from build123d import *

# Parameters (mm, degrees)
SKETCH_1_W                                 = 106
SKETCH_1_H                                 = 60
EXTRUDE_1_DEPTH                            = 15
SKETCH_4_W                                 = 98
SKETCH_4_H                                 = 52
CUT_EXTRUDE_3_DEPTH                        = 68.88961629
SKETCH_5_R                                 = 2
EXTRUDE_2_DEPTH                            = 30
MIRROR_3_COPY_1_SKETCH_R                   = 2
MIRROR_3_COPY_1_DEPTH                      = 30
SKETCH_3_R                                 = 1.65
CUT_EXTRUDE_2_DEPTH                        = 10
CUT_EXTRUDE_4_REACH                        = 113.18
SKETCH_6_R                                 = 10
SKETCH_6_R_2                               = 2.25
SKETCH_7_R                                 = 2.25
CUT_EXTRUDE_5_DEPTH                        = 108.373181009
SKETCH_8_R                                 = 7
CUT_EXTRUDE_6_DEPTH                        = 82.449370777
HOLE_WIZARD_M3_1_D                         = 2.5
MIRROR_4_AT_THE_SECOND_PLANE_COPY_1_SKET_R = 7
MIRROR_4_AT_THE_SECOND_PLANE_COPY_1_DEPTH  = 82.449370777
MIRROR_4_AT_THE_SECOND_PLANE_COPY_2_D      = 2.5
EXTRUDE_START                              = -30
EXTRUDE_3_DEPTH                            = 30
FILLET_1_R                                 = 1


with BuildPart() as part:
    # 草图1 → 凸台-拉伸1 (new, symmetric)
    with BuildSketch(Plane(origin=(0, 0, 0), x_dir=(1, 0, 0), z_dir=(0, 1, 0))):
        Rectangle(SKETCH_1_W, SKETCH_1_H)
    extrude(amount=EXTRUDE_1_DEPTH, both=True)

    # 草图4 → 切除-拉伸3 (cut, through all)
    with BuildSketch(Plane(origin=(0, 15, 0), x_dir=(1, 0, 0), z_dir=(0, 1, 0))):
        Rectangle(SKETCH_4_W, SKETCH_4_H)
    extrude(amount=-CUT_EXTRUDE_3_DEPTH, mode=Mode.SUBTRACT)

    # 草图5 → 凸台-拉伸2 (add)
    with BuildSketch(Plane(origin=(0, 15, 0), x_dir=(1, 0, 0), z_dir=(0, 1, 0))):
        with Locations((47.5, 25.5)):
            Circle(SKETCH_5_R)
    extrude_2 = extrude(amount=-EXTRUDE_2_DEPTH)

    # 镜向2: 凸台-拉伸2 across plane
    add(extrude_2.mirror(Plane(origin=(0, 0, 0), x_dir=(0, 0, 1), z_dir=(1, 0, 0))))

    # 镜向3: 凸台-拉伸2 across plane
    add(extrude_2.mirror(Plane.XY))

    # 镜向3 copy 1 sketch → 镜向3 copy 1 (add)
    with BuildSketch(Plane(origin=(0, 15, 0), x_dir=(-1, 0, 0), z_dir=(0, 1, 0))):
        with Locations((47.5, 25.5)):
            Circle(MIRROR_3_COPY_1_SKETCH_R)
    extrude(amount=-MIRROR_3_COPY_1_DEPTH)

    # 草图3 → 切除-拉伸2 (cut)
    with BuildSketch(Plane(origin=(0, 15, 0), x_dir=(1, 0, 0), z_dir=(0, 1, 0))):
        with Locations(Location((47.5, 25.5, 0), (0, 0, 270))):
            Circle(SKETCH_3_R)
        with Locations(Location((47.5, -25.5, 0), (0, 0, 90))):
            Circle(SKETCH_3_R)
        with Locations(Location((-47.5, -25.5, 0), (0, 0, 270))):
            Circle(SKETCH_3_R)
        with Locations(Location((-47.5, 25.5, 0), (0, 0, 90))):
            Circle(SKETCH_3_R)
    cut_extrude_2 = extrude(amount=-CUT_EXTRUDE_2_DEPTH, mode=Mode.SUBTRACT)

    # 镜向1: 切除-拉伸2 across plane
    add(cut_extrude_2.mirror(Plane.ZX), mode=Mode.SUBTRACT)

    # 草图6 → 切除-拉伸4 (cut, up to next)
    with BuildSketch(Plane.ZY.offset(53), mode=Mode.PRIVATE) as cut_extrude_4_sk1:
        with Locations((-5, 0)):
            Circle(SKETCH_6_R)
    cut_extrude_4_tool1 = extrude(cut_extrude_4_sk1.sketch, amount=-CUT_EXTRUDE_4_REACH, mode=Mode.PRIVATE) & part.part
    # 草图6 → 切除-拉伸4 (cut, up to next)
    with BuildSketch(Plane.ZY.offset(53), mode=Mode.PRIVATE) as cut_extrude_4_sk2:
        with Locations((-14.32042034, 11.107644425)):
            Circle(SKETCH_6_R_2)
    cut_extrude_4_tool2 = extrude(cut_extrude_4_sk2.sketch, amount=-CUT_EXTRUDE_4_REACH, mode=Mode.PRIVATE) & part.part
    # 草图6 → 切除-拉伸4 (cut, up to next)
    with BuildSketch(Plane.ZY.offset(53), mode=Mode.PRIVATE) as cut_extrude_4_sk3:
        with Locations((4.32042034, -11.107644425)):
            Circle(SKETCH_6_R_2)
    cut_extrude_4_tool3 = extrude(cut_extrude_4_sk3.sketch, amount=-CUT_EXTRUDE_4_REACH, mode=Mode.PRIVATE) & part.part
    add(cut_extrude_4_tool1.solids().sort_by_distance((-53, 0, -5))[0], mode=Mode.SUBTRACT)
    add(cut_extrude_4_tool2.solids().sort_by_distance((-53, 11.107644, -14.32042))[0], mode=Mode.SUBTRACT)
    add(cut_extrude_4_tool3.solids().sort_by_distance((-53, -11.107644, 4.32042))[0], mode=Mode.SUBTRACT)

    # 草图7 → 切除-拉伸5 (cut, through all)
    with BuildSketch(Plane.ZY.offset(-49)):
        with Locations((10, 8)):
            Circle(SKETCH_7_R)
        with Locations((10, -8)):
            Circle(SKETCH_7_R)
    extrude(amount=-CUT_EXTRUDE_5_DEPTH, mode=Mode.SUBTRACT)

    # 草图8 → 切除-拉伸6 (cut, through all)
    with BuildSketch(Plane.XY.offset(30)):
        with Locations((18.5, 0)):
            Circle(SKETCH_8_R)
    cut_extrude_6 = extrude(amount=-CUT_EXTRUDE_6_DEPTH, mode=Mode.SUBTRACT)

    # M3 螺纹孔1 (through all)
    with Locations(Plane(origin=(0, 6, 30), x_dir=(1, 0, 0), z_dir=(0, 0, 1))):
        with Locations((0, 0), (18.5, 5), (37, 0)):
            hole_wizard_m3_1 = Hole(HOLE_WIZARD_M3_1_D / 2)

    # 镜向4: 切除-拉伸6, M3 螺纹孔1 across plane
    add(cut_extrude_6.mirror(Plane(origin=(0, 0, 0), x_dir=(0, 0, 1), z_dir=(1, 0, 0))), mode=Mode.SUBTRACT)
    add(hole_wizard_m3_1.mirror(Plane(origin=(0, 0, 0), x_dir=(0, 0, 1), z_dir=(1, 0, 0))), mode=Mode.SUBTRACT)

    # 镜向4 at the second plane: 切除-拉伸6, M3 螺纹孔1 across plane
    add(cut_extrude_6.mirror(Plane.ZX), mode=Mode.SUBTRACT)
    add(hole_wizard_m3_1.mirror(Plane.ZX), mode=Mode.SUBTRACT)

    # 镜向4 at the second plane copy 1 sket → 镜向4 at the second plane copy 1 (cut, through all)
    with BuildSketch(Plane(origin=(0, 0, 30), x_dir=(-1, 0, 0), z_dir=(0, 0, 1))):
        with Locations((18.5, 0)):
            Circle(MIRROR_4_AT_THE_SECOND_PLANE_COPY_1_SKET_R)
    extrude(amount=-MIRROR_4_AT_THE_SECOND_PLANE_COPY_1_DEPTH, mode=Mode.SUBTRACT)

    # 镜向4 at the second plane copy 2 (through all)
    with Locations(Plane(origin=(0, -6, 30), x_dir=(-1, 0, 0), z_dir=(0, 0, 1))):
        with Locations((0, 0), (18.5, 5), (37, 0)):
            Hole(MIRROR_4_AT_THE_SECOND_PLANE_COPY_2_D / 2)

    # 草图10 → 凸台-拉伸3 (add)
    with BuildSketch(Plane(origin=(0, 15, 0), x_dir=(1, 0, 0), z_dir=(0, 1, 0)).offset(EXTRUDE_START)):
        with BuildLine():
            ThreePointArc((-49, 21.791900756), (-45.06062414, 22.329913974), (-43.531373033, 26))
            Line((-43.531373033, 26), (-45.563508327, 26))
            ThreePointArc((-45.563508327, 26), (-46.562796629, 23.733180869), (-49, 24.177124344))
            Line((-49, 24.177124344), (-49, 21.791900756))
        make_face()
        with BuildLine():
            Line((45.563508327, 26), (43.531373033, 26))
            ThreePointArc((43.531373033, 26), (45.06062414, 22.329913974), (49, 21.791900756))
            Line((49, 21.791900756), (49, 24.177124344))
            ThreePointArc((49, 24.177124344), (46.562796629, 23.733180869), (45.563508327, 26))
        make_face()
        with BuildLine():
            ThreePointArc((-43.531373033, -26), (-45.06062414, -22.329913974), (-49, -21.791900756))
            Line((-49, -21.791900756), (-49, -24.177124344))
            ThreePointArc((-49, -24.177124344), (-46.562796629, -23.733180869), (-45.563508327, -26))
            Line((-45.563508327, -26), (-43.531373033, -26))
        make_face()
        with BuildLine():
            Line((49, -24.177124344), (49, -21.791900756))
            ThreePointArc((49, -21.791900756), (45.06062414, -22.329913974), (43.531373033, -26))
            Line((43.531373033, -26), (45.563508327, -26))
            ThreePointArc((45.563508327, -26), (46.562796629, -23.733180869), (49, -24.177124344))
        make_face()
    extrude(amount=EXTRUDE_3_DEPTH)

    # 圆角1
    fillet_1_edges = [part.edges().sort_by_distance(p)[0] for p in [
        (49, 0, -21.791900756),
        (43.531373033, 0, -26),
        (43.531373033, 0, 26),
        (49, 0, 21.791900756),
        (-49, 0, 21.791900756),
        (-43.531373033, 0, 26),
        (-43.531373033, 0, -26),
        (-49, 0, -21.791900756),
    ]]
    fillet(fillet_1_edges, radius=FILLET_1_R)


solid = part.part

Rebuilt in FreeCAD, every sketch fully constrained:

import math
import FreeCAD as App
import Part
import Sketcher
from FreeCAD import Vector
Q = App.Units.Quantity


def edges_at(feature, points):
    """Names of the edges that pass closest to the given points."""
    edges = feature.Shape.Edges
    near = lambda p: min(range(len(edges)), key=lambda i: edges[i].distToShape(Part.Vertex(*p))[0])
    return sorted({f"Edge{near(p) + 1}" for p in points})

doc = App.newDocument("Part")
body = doc.addObject("PartDesign::Body", "Body")

sketch1 = body.newObject("Sketcher::SketchObject", "Sketch")
sketch1.AttachmentSupport = (doc.getObject("XZ_Plane"), [""])
sketch1.MapMode = "FlatFace"
sketch1.addGeometry([
    Part.LineSegment(Vector(-53, -30, 0), Vector(-53, 30, 0)),
    Part.LineSegment(Vector(-53, 30, 0), Vector(53, 30, 0)),
    Part.LineSegment(Vector(53, 30, 0), Vector(53, -30, 0)),
    Part.LineSegment(Vector(53, -30, 0), Vector(-53, -30, 0)),
], False)
sketch1.addConstraint([
    Sketcher.Constraint("Coincident", 0, 2, 1, 1),
    Sketcher.Constraint("Coincident", 1, 2, 2, 1),
    Sketcher.Constraint("Coincident", 2, 2, 3, 1),
    Sketcher.Constraint("Coincident", 3, 2, 0, 1),
    Sketcher.Constraint("Vertical", 0),
    Sketcher.Constraint("Horizontal", 1),
    Sketcher.Constraint("Vertical", 2),
    Sketcher.Constraint("Horizontal", 3),
    Sketcher.Constraint("Symmetric", 0, 2, 2, 2, -1, 1),
    Sketcher.Constraint("DistanceX", 1, 1, 1, 2, Q("106 mm")),
    Sketcher.Constraint("DistanceY", 0, 1, 0, 2, Q("60 mm")),
])
pad1 = body.newObject("PartDesign::Pad", "Pad")
pad1.Profile = sketch1
pad1.Length = 30
pad1.Midplane = True

sketch2 = body.newObject("Sketcher::SketchObject", "Sketch001")
sketch2.AttachmentSupport = (doc.getObject("XZ_Plane"), [""])
sketch2.MapMode = "FlatFace"
sketch2.AttachmentOffset = App.Placement(Vector(0, 0, -15), App.Rotation())
sketch2.addGeometry([
    Part.LineSegment(Vector(-49, -26, 0), Vector(-49, 26, 0)),
    Part.LineSegment(Vector(-49, 26, 0), Vector(49, 26, 0)),
    Part.LineSegment(Vector(49, 26, 0), Vector(49, -26, 0)),
    Part.LineSegment(Vector(49, -26, 0), Vector(-49, -26, 0)),
], False)
sketch2.addConstraint([
    Sketcher.Constraint("Coincident", 0, 2, 1, 1),
    Sketcher.Constraint("Coincident", 1, 2, 2, 1),
    Sketcher.Constraint("Coincident", 2, 2, 3, 1),
    Sketcher.Constraint("Coincident", 3, 2, 0, 1),
    Sketcher.Constraint("Vertical", 0),
    Sketcher.Constraint("Horizontal", 1),
    Sketcher.Constraint("Vertical", 2),
    Sketcher.Constraint("Horizontal", 3),
    Sketcher.Constraint("Symmetric", 0, 2, 2, 2, -1, 1),
    Sketcher.Constraint("DistanceX", 1, 1, 1, 2, Q("98 mm")),
    Sketcher.Constraint("DistanceY", 0, 1, 0, 2, Q("52 mm")),
])
pocket1 = body.newObject("PartDesign::Pocket", "Pocket")
pocket1.Profile = sketch2
pocket1.Type = "ThroughAll"
pocket1.Reversed = True

sketch3 = body.newObject("Sketcher::SketchObject", "Sketch002")
sketch3.AttachmentSupport = (doc.getObject("XZ_Plane"), [""])
sketch3.MapMode = "FlatFace"
sketch3.AttachmentOffset = App.Placement(Vector(0, 0, -15), App.Rotation())
sketch3.addGeometry(Part.Circle(Vector(47.5, -25.5, 0), Vector(0, 0, 1), 2), False)
sketch3.addConstraint([
    Sketcher.Constraint("Diameter", 0, Q("4 mm")),
    Sketcher.Constraint("DistanceX", -1, 1, 0, 3, Q("47.5 mm")),
    Sketcher.Constraint("DistanceY", 0, 3, -1, 1, Q("25.5 mm")),
])
pad2 = body.newObject("PartDesign::Pad", "Pad001")
pad2.Profile = sketch3
pad2.Length = 30
doc.recompute()

mirrored = body.newObject("PartDesign::Mirrored", "Mirrored")
mirrored.Originals = [pad2]
mirrored.MirrorPlane = (doc.getObject("YZ_Plane"), [""])
body.Tip = mirrored
doc.recompute()

mirrored2 = body.newObject("PartDesign::Mirrored", "Mirrored001")
mirrored2.Originals = [pad2]
mirrored2.MirrorPlane = (doc.getObject("XY_Plane"), [""])
body.Tip = mirrored2

sketch4 = body.newObject("Sketcher::SketchObject", "Sketch003")
sketch4.AttachmentSupport = (doc.getObject("XZ_Plane"), [""])
sketch4.MapMode = "FlatFace"
sketch4.AttachmentOffset = App.Placement(Vector(0, 0, -15), App.Rotation())
sketch4.addGeometry(Part.Circle(Vector(-47.5, 25.5, 0), Vector(0, 0, 1), 2), False)
sketch4.addConstraint([
    Sketcher.Constraint("Diameter", 0, Q("4 mm")),
    Sketcher.Constraint("DistanceX", 0, 3, -1, 1, Q("47.5 mm")),
    Sketcher.Constraint("DistanceY", -1, 1, 0, 3, Q("25.5 mm")),
])
pad3 = body.newObject("PartDesign::Pad", "Pad002")
pad3.Profile = sketch4
pad3.Length = 30

sketch5 = body.newObject("Sketcher::SketchObject", "Sketch004")
sketch5.AttachmentSupport = (doc.getObject("XZ_Plane"), [""])
sketch5.MapMode = "FlatFace"
sketch5.AttachmentOffset = App.Placement(Vector(0, 0, -15), App.Rotation())
sketch5.addGeometry([
    Part.Circle(Vector(47.5, -25.5, 0), Vector(0, 0, 1), 1.6),
    Part.Circle(Vector(47.5, 25.5, 0), Vector(0, 0, 1), 1.6),
    Part.Circle(Vector(-47.5, 25.5, 0), Vector(0, 0, 1), 1.6),
    Part.Circle(Vector(-47.5, -25.5, 0), Vector(0, 0, 1), 1.6),
], False)
sketch5.addConstraint([
    Sketcher.Constraint("Equal", 0, 1),
    Sketcher.Constraint("Equal", 1, 2),
    Sketcher.Constraint("Equal", 2, 3),
    Sketcher.Constraint("Symmetric", 0, 3, 2, 3, -1, 1),
    Sketcher.Constraint("Symmetric", 1, 3, 3, 3, -1, 1),
    Sketcher.Constraint("Symmetric", 1, 3, 2, 3, -2),
    Sketcher.Constraint("Diameter", 0, Q("3.3 mm")),
    Sketcher.Constraint("DistanceY", 0, 3, 1, 3, Q("51 mm")),
    Sketcher.Constraint("DistanceX", 2, 3, 1, 3, Q("95 mm")),
])
pocket2 = body.newObject("PartDesign::Pocket", "Pocket001")
pocket2.Profile = sketch5
pocket2.Length = 10
pocket2.Reversed = True
doc.recompute()

mirrored3 = body.newObject("PartDesign::Mirrored", "Mirrored002")
mirrored3.Originals = [pocket2]
mirrored3.MirrorPlane = (doc.getObject("XZ_Plane"), [""])
body.Tip = mirrored3

sketch6 = body.newObject("Sketcher::SketchObject", "Sketch005")
sketch6.AttachmentSupport = (doc.getObject("YZ_Plane"), [""])
sketch6.MapMode = "FlatFace"
sketch6.AttachmentOffset = App.Placement(Vector(0, 0, -53), App.Rotation())
sketch6.addGeometry(Part.Circle(Vector(0, -5, 0), Vector(0, 0, 1), 10), False)
sketch6.addConstraint([
    Sketcher.Constraint("PointOnObject", 0, 3, -2),
    Sketcher.Constraint("Diameter", 0, Q("20 mm")),
    Sketcher.Constraint("DistanceY", 0, 3, -1, 1, Q("5 mm")),
])
pocket3 = body.newObject("PartDesign::Pocket", "Pocket002")
pocket3.Profile = sketch6
pocket3.Type = "UpToFirst"
pocket3.Reversed = True

sketch7 = body.newObject("Sketcher::SketchObject", "Sketch006")
sketch7.AttachmentSupport = (doc.getObject("YZ_Plane"), [""])
sketch7.MapMode = "FlatFace"
sketch7.AttachmentOffset = App.Placement(Vector(0, 0, -53), App.Rotation())
sketch7.addGeometry(Part.Circle(Vector(11.1, -14.3, 0), Vector(0, 0, 1), 2.2), False)
sketch7.addConstraint([
    Sketcher.Constraint("Diameter", 0, Q("4.5 mm")),
    Sketcher.Constraint("DistanceY", 0, 3, -1, 1, Q("14.32042 mm")),
    Sketcher.Constraint("DistanceX", -1, 1, 0, 3, Q("11.107644 mm")),
])
pocket4 = body.newObject("PartDesign::Pocket", "Pocket003")
pocket4.Profile = sketch7
pocket4.Type = "UpToFirst"
pocket4.Reversed = True

sketch8 = body.newObject("Sketcher::SketchObject", "Sketch007")
sketch8.AttachmentSupport = (doc.getObject("YZ_Plane"), [""])
sketch8.MapMode = "FlatFace"
sketch8.AttachmentOffset = App.Placement(Vector(0, 0, -53), App.Rotation())
sketch8.addGeometry(Part.Circle(Vector(-11.1, 4.3, 0), Vector(0, 0, 1), 2.2), False)
sketch8.addConstraint([
    Sketcher.Constraint("Diameter", 0, Q("4.5 mm")),
    Sketcher.Constraint("DistanceY", -1, 1, 0, 3, Q("4.32042 mm")),
    Sketcher.Constraint("DistanceX", 0, 3, -1, 1, Q("11.107644 mm")),
])
pocket5 = body.newObject("PartDesign::Pocket", "Pocket004")
pocket5.Profile = sketch8
pocket5.Type = "UpToFirst"
pocket5.Reversed = True

sketch9 = body.newObject("Sketcher::SketchObject", "Sketch008")
sketch9.AttachmentSupport = (doc.getObject("YZ_Plane"), [""])
sketch9.MapMode = "FlatFace"
sketch9.AttachmentOffset = App.Placement(Vector(0, 0, 49), App.Rotation())
sketch9.addGeometry([
    Part.Circle(Vector(8, 10, 0), Vector(0, 0, 1), 2.2),
    Part.Circle(Vector(-8, 10, 0), Vector(0, 0, 1), 2.2),
], False)
sketch9.addConstraint([
    Sketcher.Constraint("Equal", 0, 1),
    Sketcher.Constraint("Symmetric", 0, 3, 1, 3, -2),
    Sketcher.Constraint("Diameter", 0, Q("4.5 mm")),
    Sketcher.Constraint("DistanceX", -1, 1, 0, 3, Q("8 mm")),
    Sketcher.Constraint("DistanceY", -1, 1, 0, 3, Q("10 mm")),
])
pocket6 = body.newObject("PartDesign::Pocket", "Pocket005")
pocket6.Profile = sketch9
pocket6.Type = "ThroughAll"
pocket6.Reversed = True

sketch10 = body.newObject("Sketcher::SketchObject", "Sketch009")
sketch10.AttachmentSupport = (doc.getObject("XY_Plane"), [""])
sketch10.MapMode = "FlatFace"
sketch10.AttachmentOffset = App.Placement(Vector(0, 0, 30), App.Rotation())
sketch10.addGeometry(Part.Circle(Vector(18, 0, 0), Vector(0, 0, 1), 7), False)
sketch10.addConstraint([
    Sketcher.Constraint("PointOnObject", 0, 3, -1),
    Sketcher.Constraint("Diameter", 0, Q("14 mm")),
    Sketcher.Constraint("DistanceX", -1, 1, 0, 3, Q("18.5 mm")),
])
pocket7 = body.newObject("PartDesign::Pocket", "Pocket006")
pocket7.Profile = sketch10
pocket7.Type = "ThroughAll"

sketch11 = body.newObject("Sketcher::SketchObject", "Sketch010")
sketch11.AttachmentSupport = (doc.getObject("XY_Plane"), [""])
sketch11.MapMode = "FlatFace"
sketch11.AttachmentOffset = App.Placement(Vector(0, 0, 30), App.Rotation())
sketch11.addGeometry([
    Part.Circle(Vector(0, 6, 0), Vector(0, 0, 1), 1.2),
    Part.Circle(Vector(18.5, 11, 0), Vector(0, 0, 1), 1.2),
    Part.Circle(Vector(37, 6, 0), Vector(0, 0, 1), 1.2),
], False)
sketch11.addConstraint([
    Sketcher.Constraint("Equal", 0, 1),
    Sketcher.Constraint("Equal", 1, 2),
    Sketcher.Constraint("PointOnObject", 0, 3, -2),
    Sketcher.Constraint("Horizontal", 0, 3, 2, 3),
    Sketcher.Constraint("Diameter", 0, Q("2.5 mm")),
    Sketcher.Constraint("DistanceY", -1, 1, 0, 3, Q("6 mm")),
    Sketcher.Constraint("DistanceY", -1, 1, 1, 3, Q("11 mm")),
    Sketcher.Constraint("DistanceX", -1, 1, 2, 3, Q("37 mm")),
    Sketcher.Constraint("DistanceX", -1, 1, 1, 3, Q("18.5 mm")),
])
doc.recompute()
hole = body.newObject("PartDesign::Hole", "Hole")
hole.Profile = sketch11
hole.ThreadType = "None"
hole.Diameter = 2.5
hole.DepthType = "ThroughAll"
doc.recompute()

mirrored4 = body.newObject("PartDesign::Mirrored", "Mirrored003")
mirrored4.Originals = [pocket7, hole]
mirrored4.MirrorPlane = (doc.getObject("YZ_Plane"), [""])
body.Tip = mirrored4
doc.recompute()

mirrored5 = body.newObject("PartDesign::Mirrored", "Mirrored004")
mirrored5.Originals = [pocket7, hole]
mirrored5.MirrorPlane = (doc.getObject("XZ_Plane"), [""])
body.Tip = mirrored5

sketch12 = body.newObject("Sketcher::SketchObject", "Sketch011")
sketch12.AttachmentSupport = (doc.getObject("XY_Plane"), [""])
sketch12.MapMode = "FlatFace"
sketch12.AttachmentOffset = App.Placement(Vector(0, 0, 30), App.Rotation())
sketch12.addGeometry(Part.Circle(Vector(-18, 0, 0), Vector(0, 0, 1), 7), False)
sketch12.addConstraint([
    Sketcher.Constraint("PointOnObject", 0, 3, -1),
    Sketcher.Constraint("Diameter", 0, Q("14 mm")),
    Sketcher.Constraint("DistanceX", 0, 3, -1, 1, Q("18.5 mm")),
])
pocket8 = body.newObject("PartDesign::Pocket", "Pocket007")
pocket8.Profile = sketch12
pocket8.Type = "ThroughAll"

sketch13 = body.newObject("Sketcher::SketchObject", "Sketch012")
sketch13.AttachmentSupport = (doc.getObject("XY_Plane"), [""])
sketch13.MapMode = "FlatFace"
sketch13.AttachmentOffset = App.Placement(Vector(0, 0, 30), App.Rotation())
sketch13.addGeometry([
    Part.Circle(Vector(0, -6, 0), Vector(0, 0, 1), 1.2),
    Part.Circle(Vector(-18.5, -11, 0), Vector(0, 0, 1), 1.2),
    Part.Circle(Vector(-37, -6, 0), Vector(0, 0, 1), 1.2),
], False)
sketch13.addConstraint([
    Sketcher.Constraint("Equal", 0, 1),
    Sketcher.Constraint("Equal", 1, 2),
    Sketcher.Constraint("PointOnObject", 0, 3, -2),
    Sketcher.Constraint("Horizontal", 0, 3, 2, 3),
    Sketcher.Constraint("Diameter", 0, Q("2.5 mm")),
    Sketcher.Constraint("DistanceY", 0, 3, -1, 1, Q("6 mm")),
    Sketcher.Constraint("DistanceY", 1, 3, -1, 1, Q("11 mm")),
    Sketcher.Constraint("DistanceX", 2, 3, -1, 1, Q("37 mm")),
    Sketcher.Constraint("DistanceX", 1, 3, -1, 1, Q("18.5 mm")),
])
doc.recompute()
hole2 = body.newObject("PartDesign::Hole", "Hole001")
hole2.Profile = sketch13
hole2.ThreadType = "None"
hole2.Diameter = 2.5
hole2.DepthType = "ThroughAll"

sketch14 = body.newObject("Sketcher::SketchObject", "Sketch013")
sketch14.AttachmentSupport = (doc.getObject("XZ_Plane"), [""])
sketch14.MapMode = "FlatFace"
sketch14.AttachmentOffset = App.Placement(Vector(0, 0, 15), App.Rotation())
sketch14.addGeometry([
    Part.ArcOfCircle(Part.Circle(Vector(-47.5, -25.5, 0), Vector(0, 0, 1), 4), math.radians(-7), math.radians(112)),
    Part.LineSegment(Vector(-43.5, -26, 0), Vector(-45.6, -26, 0)),
    Part.ArcOfCircle(Part.Circle(Vector(-47.5, -25.5, 0), Vector(0, 0, 1), 2), math.radians(-14), math.radians(139)),
    Part.LineSegment(Vector(-49, -24.2, 0), Vector(-49, -21.8, 0)),
    Part.LineSegment(Vector(45.6, -26, 0), Vector(43.5, -26, 0)),
    Part.ArcOfCircle(Part.Circle(Vector(47.5, -25.5, 0), Vector(0, 0, 1), 4), math.radians(68), math.radians(187)),
    Part.LineSegment(Vector(49, -21.8, 0), Vector(49, -24.2, 0)),
    Part.ArcOfCircle(Part.Circle(Vector(47.5, -25.5, 0), Vector(0, 0, 1), 2), math.radians(41), math.radians(194)),
    Part.ArcOfCircle(Part.Circle(Vector(-47.5, 25.5, 0), Vector(0, 0, 1), 4), math.radians(-112), math.radians(7)),
    Part.LineSegment(Vector(-49, 21.8, 0), Vector(-49, 24.2, 0)),
    Part.ArcOfCircle(Part.Circle(Vector(-47.5, 25.5, 0), Vector(0, 0, 1), 2), math.radians(-139), math.radians(14)),
    Part.LineSegment(Vector(-45.6, 26, 0), Vector(-43.5, 26, 0)),
    Part.LineSegment(Vector(49, 24.2, 0), Vector(49, 21.8, 0)),
    Part.ArcOfCircle(Part.Circle(Vector(47.5, 25.5, 0), Vector(0, 0, 1), 4), math.radians(173), math.radians(292)),
    Part.LineSegment(Vector(43.5, 26, 0), Vector(45.6, 26, 0)),
    Part.ArcOfCircle(Part.Circle(Vector(47.5, 25.5, 0), Vector(0, 0, 1), 2), math.radians(166), math.radians(319)),
], False)
sketch14.addConstraint([
    Sketcher.Constraint("Coincident", 0, 1, 1, 1),
    Sketcher.Constraint("Coincident", 1, 2, 2, 1),
    Sketcher.Constraint("Coincident", 2, 2, 3, 1),
    Sketcher.Constraint("Coincident", 3, 2, 0, 2),
    Sketcher.Constraint("Coincident", 4, 2, 5, 2),
    Sketcher.Constraint("Coincident", 5, 1, 6, 1),
    Sketcher.Constraint("Coincident", 6, 2, 7, 1),
    Sketcher.Constraint("Coincident", 7, 2, 4, 1),
    Sketcher.Constraint("Coincident", 8, 1, 9, 1),
    Sketcher.Constraint("Coincident", 9, 2, 10, 1),
    Sketcher.Constraint("Coincident", 10, 2, 11, 1),
    Sketcher.Constraint("Coincident", 11, 2, 8, 2),
    Sketcher.Constraint("Coincident", 12, 2, 13, 2),
    Sketcher.Constraint("Coincident", 13, 1, 14, 1),
    Sketcher.Constraint("Coincident", 14, 2, 15, 1),
    Sketcher.Constraint("Coincident", 15, 2, 12, 1),
    Sketcher.Constraint("Horizontal", 1),
    Sketcher.Constraint("Vertical", 3),
    Sketcher.Constraint("Horizontal", 4),
    Sketcher.Constraint("Vertical", 6),
    Sketcher.Constraint("Vertical", 9),
    Sketcher.Constraint("Horizontal", 11),
    Sketcher.Constraint("Vertical", 12),
    Sketcher.Constraint("Horizontal", 14),
    Sketcher.Constraint("Coincident", 2, 3, 0, 3),
    Sketcher.Constraint("Coincident", 7, 3, 5, 3),
    Sketcher.Constraint("Coincident", 10, 3, 8, 3),
    Sketcher.Constraint("Coincident", 15, 3, 13, 3),
    Sketcher.Constraint("Equal", 0, 5),
    Sketcher.Constraint("Equal", 2, 7),
    Sketcher.Constraint("Equal", 5, 8),
    Sketcher.Constraint("Equal", 7, 10),
    Sketcher.Constraint("Equal", 8, 13),
    Sketcher.Constraint("Equal", 10, 15),
    Sketcher.Constraint("Symmetric", 5, 3, 8, 3, -1, 1),
    Sketcher.Constraint("Symmetric", 0, 3, 13, 3, -1, 1),
    Sketcher.Constraint("Symmetric", 0, 3, 5, 3, -2),
    Sketcher.Constraint("Horizontal", 1, 2, 4, 2),
    Sketcher.Constraint("Horizontal", 3, 2, 5, 1),
    Sketcher.Constraint("Horizontal", 8, 1, 12, 2),
    Sketcher.Constraint("Horizontal", 11, 2, 13, 1),
    Sketcher.Constraint("Vertical", 3, 2, 8, 1),
    Sketcher.Constraint("Vertical", 1, 2, 10, 2),
    Sketcher.Constraint("Radius", 0, Q("4 mm")),
    Sketcher.Constraint("Radius", 2, Q("2 mm")),
    Sketcher.Constraint("DistanceY", 0, 1, -1, 1, Q("26 mm")),
    Sketcher.Constraint("DistanceX", 2, 2, -1, 1, Q("49 mm")),
    Sketcher.Constraint("DistanceX", 2, 3, 5, 3, Q("95 mm")),
    Sketcher.Constraint("DistanceY", 2, 3, 8, 3, Q("51 mm")),
])
pad4 = body.newObject("PartDesign::Pad", "Pad003")
pad4.Profile = sketch14
pad4.Length = 30
pad4.Reversed = True
doc.recompute()

fillet = body.newObject("PartDesign::Fillet", "Fillet")
fillet.Base = (pad4, edges_at(pad4, [
    (49, 0, -21.792),
    (43.531, 0, -26),
    (43.531, 0, 26),
    (49, 0, 21.792),
    (-49, 0, 21.792),
    (-43.531, 0, 26),
    (-43.531, 0, -26),
    (-49, 0, -21.792),
]))
fillet.Radius = 1

doc.recompute()
